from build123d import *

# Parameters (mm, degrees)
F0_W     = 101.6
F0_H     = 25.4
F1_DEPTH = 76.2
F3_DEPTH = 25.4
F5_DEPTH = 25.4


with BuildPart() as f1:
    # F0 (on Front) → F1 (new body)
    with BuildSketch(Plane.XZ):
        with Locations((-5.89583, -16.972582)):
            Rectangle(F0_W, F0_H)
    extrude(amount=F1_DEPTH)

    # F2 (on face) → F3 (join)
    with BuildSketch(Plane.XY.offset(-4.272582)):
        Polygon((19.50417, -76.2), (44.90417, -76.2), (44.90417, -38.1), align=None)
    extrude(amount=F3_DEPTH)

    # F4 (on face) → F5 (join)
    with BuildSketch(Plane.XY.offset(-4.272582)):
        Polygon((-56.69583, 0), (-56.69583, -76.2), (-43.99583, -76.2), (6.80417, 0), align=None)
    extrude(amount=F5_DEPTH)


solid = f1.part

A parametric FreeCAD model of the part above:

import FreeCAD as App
import Part
import Sketcher

V = App.Vector
Q = App.Units.Quantity

doc = App.newDocument("Part")
body = doc.addObject("PartDesign::Body", "Body")

sketch1 = doc.addObject("Sketcher::SketchObject", "Sketch")
body.addObject(sketch1)
sketch1.AttachmentSupport = (doc.XZ_Plane, [""])
sketch1.MapMode = "FlatFace"
sketch1.addGeometry(Part.LineSegment(V(-57, -4, 0), V(-57, -30, 0)), False)
sketch1.addGeometry(Part.LineSegment(V(-57, -30, 0), V(45, -30, 0)), False)
sketch1.addGeometry(Part.LineSegment(V(45, -30, 0), V(45, -4, 0)), False)
sketch1.addGeometry(Part.LineSegment(V(45, -4, 0), V(-57, -4, 0)), False)
sketch1.addConstraint(Sketcher.Constraint("Coincident", 0, 2, 1, 1))
sketch1.addConstraint(Sketcher.Constraint("Coincident", 1, 2, 2, 1))
sketch1.addConstraint(Sketcher.Constraint("Coincident", 2, 2, 3, 1))
sketch1.addConstraint(Sketcher.Constraint("Coincident", 3, 2, 0, 1))
sketch1.addConstraint(Sketcher.Constraint("Vertical", 0))
sketch1.addConstraint(Sketcher.Constraint("Horizontal", 1))
sketch1.addConstraint(Sketcher.Constraint("Vertical", 2))
sketch1.addConstraint(Sketcher.Constraint("Horizontal", 3))
sketch1.addConstraint(Sketcher.Constraint("DistanceX", 1, 1, 1, 2, Q("4 in")))
sketch1.addConstraint(Sketcher.Constraint("DistanceY", 0, 2, 0, 1, Q("1 in")))
sketch1.addConstraint(Sketcher.Constraint("DistanceX", 0, 2, -1, 1, Q("56.69583 mm")))
sketch1.addConstraint(Sketcher.Constraint("DistanceY", 0, 2, -1, 1, Q("29.672582 mm")))
pad1 = doc.addObject("PartDesign::Pad", "Pad")
body.addObject(pad1)
pad1.Profile = sketch1
pad1.Length = Q("3 in")

sketch2 = doc.addObject("Sketcher::SketchObject", "Sketch001")
body.addObject(sketch2)
sketch2.AttachmentSupport = (doc.XY_Plane, [""])
sketch2.MapMode = "FlatFace"
sketch2.AttachmentOffset = App.Placement(V(0, 0, -4.272582), App.Rotation())
sketch2.addGeometry(Part.LineSegment(V(20, -76, 0), V(45, -76, 0)), False)
sketch2.addGeometry(Part.LineSegment(V(45, -76, 0), V(45, -38, 0)), False)
sketch2.addGeometry(Part.LineSegment(V(45, -38, 0), V(20, -76, 0)), False)
sketch2.addConstraint(Sketcher.Constraint("Coincident", 0, 2, 1, 1))
sketch2.addConstraint(Sketcher.Constraint("Coincident", 1, 2, 2, 1))
sketch2.addConstraint(Sketcher.Constraint("Coincident", 2, 2, 0, 1))
sketch2.addConstraint(Sketcher.Constraint("Horizontal", 0))
sketch2.addConstraint(Sketcher.Constraint("Vertical", 1))
sketch2.addConstraint(Sketcher.Constraint("DistanceX", 0, 1, 0, 2, Q("1 in")))
sketch2.addConstraint(Sketcher.Constraint("DistanceY", 1, 1, 1, 2, Q("1.5 in")))
sketch2.addConstraint(Sketcher.Constraint("DistanceY", 0, 2, -1, 1, Q("3 in")))
sketch2.addConstraint(Sketcher.Constraint("DistanceX", -1, 1, 0, 2, Q("44.90417 mm")))
pad2 = doc.addObject("PartDesign::Pad", "Pad001")
body.addObject(pad2)
pad2.Profile = sketch2
pad2.Length = Q("1 in")

sketch3 = doc.addObject("Sketcher::SketchObject", "Sketch002")
body.addObject(sketch3)
sketch3.AttachmentSupport = (doc.XY_Plane, [""])
sketch3.MapMode = "FlatFace"
sketch3.AttachmentOffset = App.Placement(V(0, 0, -4.272582), App.Rotation())
sketch3.addGeometry(Part.LineSegment(V(-57, 0, 0), V(-57, -76, 0)), False)
sketch3.addGeometry(Part.LineSegment(V(-57, -76, 0), V(-44, -76, 0)), False)
sketch3.addGeometry(Part.LineSegment(V(-44, -76, 0), V(7, 0, 0)), False)
sketch3.addGeometry(Part.LineSegment(V(7, 0, 0), V(-57, 0, 0)), False)
sketch3.addConstraint(Sketcher.Constraint("Coincident", 0, 2, 1, 1))
sketch3.addConstraint(Sketcher.Constraint("Coincident", 1, 2, 2, 1))
sketch3.addConstraint(Sketcher.Constraint("Coincident", 2, 2, 3, 1))
sketch3.addConstraint(Sketcher.Constraint("Coincident", 3, 2, 0, 1))
sketch3.addConstraint(Sketcher.Constraint("Vertical", 0))
sketch3.addConstraint(Sketcher.Constraint("Horizontal", 1))
sketch3.addConstraint(Sketcher.Constraint("Horizontal", 3))
sketch3.addConstraint(Sketcher.Constraint("PointOnObject", 2, 2, -1))
sketch3.addConstraint(Sketcher.Constraint("DistanceY", 0, 2, 0, 1, Q("3 in")))
sketch3.addConstraint(Sketcher.Constraint("DistanceX", 1, 1, 1, 2, Q("0.5 in")))
sketch3.addConstraint(Sketcher.Constraint("DistanceX", 3, 2, 3, 1, Q("2.5 in")))
sketch3.addConstraint(Sketcher.Constraint("DistanceX", 0, 2, -1, 1, Q("56.69583 mm")))
pad3 = doc.addObject("PartDesign::Pad", "Pad002")
body.addObject(pad3)
pad3.Profile = sketch3
pad3.Length = Q("1 in")

doc.recompute()
